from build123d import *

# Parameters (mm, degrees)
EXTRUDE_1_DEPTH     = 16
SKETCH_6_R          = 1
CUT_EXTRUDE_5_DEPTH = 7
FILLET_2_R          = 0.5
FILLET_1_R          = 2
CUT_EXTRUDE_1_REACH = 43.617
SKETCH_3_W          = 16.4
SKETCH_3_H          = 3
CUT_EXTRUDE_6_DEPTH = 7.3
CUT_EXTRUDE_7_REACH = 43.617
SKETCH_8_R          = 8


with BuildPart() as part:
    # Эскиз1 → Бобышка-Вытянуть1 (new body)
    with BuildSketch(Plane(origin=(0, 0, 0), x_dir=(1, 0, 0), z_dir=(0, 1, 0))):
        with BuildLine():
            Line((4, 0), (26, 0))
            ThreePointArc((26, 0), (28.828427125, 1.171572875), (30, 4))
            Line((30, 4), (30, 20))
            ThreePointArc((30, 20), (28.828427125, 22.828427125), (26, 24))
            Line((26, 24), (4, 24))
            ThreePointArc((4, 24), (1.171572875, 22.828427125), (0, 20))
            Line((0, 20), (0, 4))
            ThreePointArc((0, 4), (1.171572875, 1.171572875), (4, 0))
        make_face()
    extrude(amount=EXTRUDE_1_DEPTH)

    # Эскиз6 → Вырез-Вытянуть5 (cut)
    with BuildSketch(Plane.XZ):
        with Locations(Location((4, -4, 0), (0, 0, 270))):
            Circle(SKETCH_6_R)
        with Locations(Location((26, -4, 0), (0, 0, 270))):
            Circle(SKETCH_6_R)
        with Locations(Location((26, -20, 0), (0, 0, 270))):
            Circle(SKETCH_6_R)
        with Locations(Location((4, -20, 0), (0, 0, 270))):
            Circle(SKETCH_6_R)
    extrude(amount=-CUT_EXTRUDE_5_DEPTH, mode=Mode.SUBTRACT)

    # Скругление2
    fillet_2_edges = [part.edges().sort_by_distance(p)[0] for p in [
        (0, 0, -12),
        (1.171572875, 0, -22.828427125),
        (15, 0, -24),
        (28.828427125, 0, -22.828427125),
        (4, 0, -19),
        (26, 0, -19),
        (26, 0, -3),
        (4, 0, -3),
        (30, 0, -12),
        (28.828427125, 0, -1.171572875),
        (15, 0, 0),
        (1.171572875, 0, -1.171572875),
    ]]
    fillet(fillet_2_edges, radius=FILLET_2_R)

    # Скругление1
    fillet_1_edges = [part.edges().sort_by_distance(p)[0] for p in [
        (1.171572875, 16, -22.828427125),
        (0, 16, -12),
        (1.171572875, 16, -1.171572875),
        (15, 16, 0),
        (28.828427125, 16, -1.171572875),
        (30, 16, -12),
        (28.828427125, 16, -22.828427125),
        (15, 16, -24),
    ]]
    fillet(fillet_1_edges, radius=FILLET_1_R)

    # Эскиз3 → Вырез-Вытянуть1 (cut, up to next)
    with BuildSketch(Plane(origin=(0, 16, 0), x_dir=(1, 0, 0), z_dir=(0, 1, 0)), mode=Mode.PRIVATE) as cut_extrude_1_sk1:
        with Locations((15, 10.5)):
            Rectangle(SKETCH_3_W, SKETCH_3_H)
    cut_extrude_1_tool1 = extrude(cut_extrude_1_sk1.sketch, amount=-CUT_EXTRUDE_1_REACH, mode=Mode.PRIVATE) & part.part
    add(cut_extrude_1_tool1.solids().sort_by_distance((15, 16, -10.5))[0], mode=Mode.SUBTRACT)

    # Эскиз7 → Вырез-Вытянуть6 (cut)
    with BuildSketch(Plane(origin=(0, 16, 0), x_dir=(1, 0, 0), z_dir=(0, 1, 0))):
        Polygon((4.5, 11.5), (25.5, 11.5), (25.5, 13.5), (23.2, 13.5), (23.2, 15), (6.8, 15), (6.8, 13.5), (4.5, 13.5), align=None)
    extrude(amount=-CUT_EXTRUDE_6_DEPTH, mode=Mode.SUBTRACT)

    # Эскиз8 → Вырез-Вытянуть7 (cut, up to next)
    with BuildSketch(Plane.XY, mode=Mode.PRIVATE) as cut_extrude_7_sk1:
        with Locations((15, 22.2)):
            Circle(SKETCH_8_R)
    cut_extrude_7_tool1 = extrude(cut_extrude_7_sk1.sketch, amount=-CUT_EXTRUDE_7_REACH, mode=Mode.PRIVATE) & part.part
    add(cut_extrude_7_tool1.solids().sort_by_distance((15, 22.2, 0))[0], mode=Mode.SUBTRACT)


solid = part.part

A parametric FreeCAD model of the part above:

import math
import FreeCAD as App
import Part
import Sketcher


def edges_at(feature, points):
    """Names of the edges that pass closest to the given points."""
    edges = feature.Shape.Edges
    near = lambda p: min(range(len(edges)), key=lambda i: edges[i].distToShape(Part.Vertex(*p))[0])
    return sorted({f"Edge{near(p) + 1}" for p in points})

doc = App.newDocument("Part")
body = doc.addObject("PartDesign::Body", "Body")

sketch1 = body.newObject("Sketcher::SketchObject", "Sketch")
sketch1.AttachmentSupport = (doc.getObject("XZ_Plane"), [""])
sketch1.MapMode = "FlatFace"
sketch1.addGeometry([
    Part.LineSegment(App.Vector(4, 0, 0), App.Vector(26, 0, 0)),
    Part.ArcOfCircle(Part.Circle(App.Vector(26, -4, 0), App.Vector(0, 0, 1), 4), math.radians(0), math.radians(90)),
    Part.LineSegment(App.Vector(30, -4, 0), App.Vector(30, -20, 0)),
    Part.ArcOfCircle(Part.Circle(App.Vector(26, -20, 0), App.Vector(0, 0, 1), 4), math.radians(-90), math.radians(0)),
    Part.LineSegment(App.Vector(26, -24, 0), App.Vector(4, -24, 0)),
    Part.ArcOfCircle(Part.Circle(App.Vector(4, -20, 0), App.Vector(0, 0, 1), 4), math.radians(180), math.radians(270)),
    Part.LineSegment(App.Vector(0, -20, 0), App.Vector(0, -4, 0)),
    Part.ArcOfCircle(Part.Circle(App.Vector(4, -4, 0), App.Vector(0, 0, 1), 4), math.radians(90), math.radians(180)),
], False)
sketch1.addConstraint([
    Sketcher.Constraint("Tangent", 0, 2, 1, 2),
    Sketcher.Constraint("Tangent", 1, 1, 2, 1),
    Sketcher.Constraint("Tangent", 2, 2, 3, 2),
    Sketcher.Constraint("Tangent", 3, 1, 4, 1),
    Sketcher.Constraint("Tangent", 4, 2, 5, 2),
    Sketcher.Constraint("Tangent", 5, 1, 6, 1),
    Sketcher.Constraint("Tangent", 6, 2, 7, 2),
    Sketcher.Constraint("Tangent", 7, 1, 0, 1),
    Sketcher.Constraint("Horizontal", 0),
    Sketcher.Constraint("Vertical", 2),
    Sketcher.Constraint("Horizontal", 4),
    Sketcher.Constraint("Vertical", 6),
    Sketcher.Constraint("Equal", 1, 3),
    Sketcher.Constraint("Equal", 3, 5),
    Sketcher.Constraint("Equal", 5, 7),
    Sketcher.Constraint("PointOnObject", 0, 2, -1),
    Sketcher.Constraint("PointOnObject", 5, 1, -2),
    Sketcher.Constraint("Radius", 1, 4.0),
    Sketcher.Constraint("DistanceX", 0, 1, 0, 2, 22.0),
    Sketcher.Constraint("DistanceY", 2, 2, 2, 1, 16.0),
])
pad1 = body.newObject("PartDesign::Pad", "Pad")
pad1.Profile = sketch1
pad1.Length = 16
pad1.Reversed = True

sketch2 = body.newObject("Sketcher::SketchObject", "Sketch001")
sketch2.AttachmentSupport = (doc.getObject("XZ_Plane"), [""])
sketch2.MapMode = "FlatFace"
sketch2.addGeometry([
    Part.Circle(App.Vector(4, -4, 0), App.Vector(0, 0, 1), 1),
    Part.Circle(App.Vector(26, -4, 0), App.Vector(0, 0, 1), 1),
    Part.Circle(App.Vector(26, -20, 0), App.Vector(0, 0, 1), 1),
    Part.Circle(App.Vector(4, -20, 0), App.Vector(0, 0, 1), 1),
], False)
sketch2.addConstraint([
    Sketcher.Constraint("Equal", 0, 1),
    Sketcher.Constraint("Equal", 1, 2),
    Sketcher.Constraint("Equal", 2, 3),
    Sketcher.Constraint("Horizontal", 0, 3, 1, 3),
    Sketcher.Constraint("Horizontal", 2, 3, 3, 3),
    Sketcher.Constraint("Vertical", 1, 3, 2, 3),
    Sketcher.Constraint("Vertical", 0, 3, 3, 3),
    Sketcher.Constraint("Diameter", 0, 2.0),
    Sketcher.Constraint("DistanceX", -1, 1, 0, 3, 4.0),
    Sketcher.Constraint("DistanceY", 0, 3, -1, 1, 4.0),
    Sketcher.Constraint("DistanceX", -1, 1, 1, 3, 26.0),
    Sketcher.Constraint("DistanceY", 2, 3, -1, 1, 20.0),
])
pocket1 = body.newObject("PartDesign::Pocket", "Pocket")
pocket1.Profile = sketch2
pocket1.Length = 7
doc.recompute()

fillet = body.newObject("PartDesign::Fillet", "Fillet")
fillet.Base = (pocket1, edges_at(pocket1, [
    (0, 0, -12),
    (1.172, 0, -22.828),
    (15, 0, -24),
    (28.828, 0, -22.828),
    (4, 0, -19),
    (26, 0, -19),
    (26, 0, -3),
    (4, 0, -3),
    (30, 0, -12),
    (28.828, 0, -1.172),
    (15, 0, 0),
    (1.172, 0, -1.172),
]))
fillet.Radius = 0.5
doc.recompute()

fillet2 = body.newObject("PartDesign::Fillet", "Fillet001")
fillet2.Base = (fillet, edges_at(fillet, [
    (1.172, 16, -22.828),
    (0, 16, -12),
    (1.172, 16, -1.172),
    (15, 16, 0),
    (28.828, 16, -1.172),
    (30, 16, -12),
    (28.828, 16, -22.828),
    (15, 16, -24),
]))
fillet2.Radius = 2

sketch3 = body.newObject("Sketcher::SketchObject", "Sketch002")
sketch3.AttachmentSupport = (doc.getObject("XZ_Plane"), [""])
sketch3.MapMode = "FlatFace"
sketch3.AttachmentOffset = App.Placement(App.Vector(0, 0, -16), App.Rotation())
sketch3.addGeometry([
    Part.LineSegment(App.Vector(6.8, -12, 0), App.Vector(6.8, -9, 0)),
    Part.LineSegment(App.Vector(6.8, -9, 0), App.Vector(23.2, -9, 0)),
    Part.LineSegment(App.Vector(23.2, -9, 0), App.Vector(23.2, -12, 0)),
    Part.LineSegment(App.Vector(23.2, -12, 0), App.Vector(6.8, -12, 0)),
], False)
sketch3.addConstraint([
    Sketcher.Constraint("Coincident", 0, 2, 1, 1),
    Sketcher.Constraint("Coincident", 1, 2, 2, 1),
    Sketcher.Constraint("Coincident", 2, 2, 3, 1),
    Sketcher.Constraint("Coincident", 3, 2, 0, 1),
    Sketcher.Constraint("Vertical", 0),
    Sketcher.Constraint("Horizontal", 1),
    Sketcher.Constraint("Vertical", 2),
    Sketcher.Constraint("Horizontal", 3),
    Sketcher.Constraint("DistanceY", 0, 1, 0, 2, 3.0),
    Sketcher.Constraint("DistanceX", 1, 1, 1, 2, 16.4),
    Sketcher.Constraint("DistanceY", 0, 2, -1, 1, 9.0),
    Sketcher.Constraint("DistanceX", -1, 1, 0, 2, 6.8),
])
pocket2 = body.newObject("PartDesign::Pocket", "Pocket001")
pocket2.Profile = sketch3
pocket2.Type = "UpToFirst"
pocket2.Reversed = True

sketch4 = body.newObject("Sketcher::SketchObject", "Sketch003")
sketch4.AttachmentSupport = (doc.getObject("XZ_Plane"), [""])
sketch4.MapMode = "FlatFace"
sketch4.AttachmentOffset = App.Placement(App.Vector(0, 0, -16), App.Rotation())
sketch4.addGeometry([
    Part.LineSegment(App.Vector(4.5, -11.5, 0), App.Vector(25.5, -11.5, 0)),
    Part.LineSegment(App.Vector(25.5, -11.5, 0), App.Vector(25.5, -13.5, 0)),
    Part.LineSegment(App.Vector(25.5, -13.5, 0), App.Vector(23.2, -13.5, 0)),
    Part.LineSegment(App.Vector(23.2, -13.5, 0), App.Vector(23.2, -15, 0)),
    Part.LineSegment(App.Vector(23.2, -15, 0), App.Vector(6.8, -15, 0)),
    Part.LineSegment(App.Vector(6.8, -15, 0), App.Vector(6.8, -13.5, 0)),
    Part.LineSegment(App.Vector(6.8, -13.5, 0), App.Vector(4.5, -13.5, 0)),
    Part.LineSegment(App.Vector(4.5, -13.5, 0), App.Vector(4.5, -11.5, 0)),
], False)
sketch4.addConstraint([
    Sketcher.Constraint("Coincident", 0, 2, 1, 1),
    Sketcher.Constraint("Coincident", 1, 2, 2, 1),
    Sketcher.Constraint("Coincident", 2, 2, 3, 1),
    Sketcher.Constraint("Coincident", 3, 2, 4, 1),
    Sketcher.Constraint("Coincident", 4, 2, 5, 1),
    Sketcher.Constraint("Coincident", 5, 2, 6, 1),
    Sketcher.Constraint("Coincident", 6, 2, 7, 1),
    Sketcher.Constraint("Coincident", 7, 2, 0, 1),
    Sketcher.Constraint("Horizontal", 0),
    Sketcher.Constraint("Vertical", 1),
    Sketcher.Constraint("Horizontal", 2),
    Sketcher.Constraint("Vertical", 3),
    Sketcher.Constraint("Horizontal", 4),
    Sketcher.Constraint("Vertical", 5),
    Sketcher.Constraint("Horizontal", 6),
    Sketcher.Constraint("Vertical", 7),
    Sketcher.Constraint("Horizontal", 2, 2, 5, 2),
    Sketcher.Constraint("Equal", 2, 6),
    Sketcher.Constraint("DistanceX", 0, 1, 0, 2, 21.0),
    Sketcher.Constraint("DistanceY", 1, 2, 1, 1, 2.0),
    Sketcher.Constraint("DistanceX", 2, 2, 2, 1, 2.3),
    Sketcher.Constraint("DistanceY", 3, 2, 3, 1, 1.5),
    Sketcher.Constraint("DistanceY", 3, 2, -1, 1, 15.0),
    Sketcher.Constraint("DistanceX", -1, 1, 0, 2, 25.5),
])
pocket3 = body.newObject("PartDesign::Pocket", "Pocket002")
pocket3.Profile = sketch4
pocket3.Length = 7.3
pocket3.Reversed = True

sketch5 = body.newObject("Sketcher::SketchObject", "Sketch004")
sketch5.AttachmentSupport = (doc.getObject("XY_Plane"), [""])
sketch5.MapMode = "FlatFace"
sketch5.addGeometry(Part.Circle(App.Vector(15, 22.2, 0), App.Vector(0, 0, 1), 8), False)
sketch5.addConstraint([
    Sketcher.Constraint("Diameter", 0, 16.0),
    Sketcher.Constraint("DistanceX", -1, 1, 0, 3, 15.0),
    Sketcher.Constraint("DistanceY", -1, 1, 0, 3, 22.2),
])
pocket4 = body.newObject("PartDesign::Pocket", "Pocket003")
pocket4.Profile = sketch5
pocket4.Length = 9

doc.recompute()
